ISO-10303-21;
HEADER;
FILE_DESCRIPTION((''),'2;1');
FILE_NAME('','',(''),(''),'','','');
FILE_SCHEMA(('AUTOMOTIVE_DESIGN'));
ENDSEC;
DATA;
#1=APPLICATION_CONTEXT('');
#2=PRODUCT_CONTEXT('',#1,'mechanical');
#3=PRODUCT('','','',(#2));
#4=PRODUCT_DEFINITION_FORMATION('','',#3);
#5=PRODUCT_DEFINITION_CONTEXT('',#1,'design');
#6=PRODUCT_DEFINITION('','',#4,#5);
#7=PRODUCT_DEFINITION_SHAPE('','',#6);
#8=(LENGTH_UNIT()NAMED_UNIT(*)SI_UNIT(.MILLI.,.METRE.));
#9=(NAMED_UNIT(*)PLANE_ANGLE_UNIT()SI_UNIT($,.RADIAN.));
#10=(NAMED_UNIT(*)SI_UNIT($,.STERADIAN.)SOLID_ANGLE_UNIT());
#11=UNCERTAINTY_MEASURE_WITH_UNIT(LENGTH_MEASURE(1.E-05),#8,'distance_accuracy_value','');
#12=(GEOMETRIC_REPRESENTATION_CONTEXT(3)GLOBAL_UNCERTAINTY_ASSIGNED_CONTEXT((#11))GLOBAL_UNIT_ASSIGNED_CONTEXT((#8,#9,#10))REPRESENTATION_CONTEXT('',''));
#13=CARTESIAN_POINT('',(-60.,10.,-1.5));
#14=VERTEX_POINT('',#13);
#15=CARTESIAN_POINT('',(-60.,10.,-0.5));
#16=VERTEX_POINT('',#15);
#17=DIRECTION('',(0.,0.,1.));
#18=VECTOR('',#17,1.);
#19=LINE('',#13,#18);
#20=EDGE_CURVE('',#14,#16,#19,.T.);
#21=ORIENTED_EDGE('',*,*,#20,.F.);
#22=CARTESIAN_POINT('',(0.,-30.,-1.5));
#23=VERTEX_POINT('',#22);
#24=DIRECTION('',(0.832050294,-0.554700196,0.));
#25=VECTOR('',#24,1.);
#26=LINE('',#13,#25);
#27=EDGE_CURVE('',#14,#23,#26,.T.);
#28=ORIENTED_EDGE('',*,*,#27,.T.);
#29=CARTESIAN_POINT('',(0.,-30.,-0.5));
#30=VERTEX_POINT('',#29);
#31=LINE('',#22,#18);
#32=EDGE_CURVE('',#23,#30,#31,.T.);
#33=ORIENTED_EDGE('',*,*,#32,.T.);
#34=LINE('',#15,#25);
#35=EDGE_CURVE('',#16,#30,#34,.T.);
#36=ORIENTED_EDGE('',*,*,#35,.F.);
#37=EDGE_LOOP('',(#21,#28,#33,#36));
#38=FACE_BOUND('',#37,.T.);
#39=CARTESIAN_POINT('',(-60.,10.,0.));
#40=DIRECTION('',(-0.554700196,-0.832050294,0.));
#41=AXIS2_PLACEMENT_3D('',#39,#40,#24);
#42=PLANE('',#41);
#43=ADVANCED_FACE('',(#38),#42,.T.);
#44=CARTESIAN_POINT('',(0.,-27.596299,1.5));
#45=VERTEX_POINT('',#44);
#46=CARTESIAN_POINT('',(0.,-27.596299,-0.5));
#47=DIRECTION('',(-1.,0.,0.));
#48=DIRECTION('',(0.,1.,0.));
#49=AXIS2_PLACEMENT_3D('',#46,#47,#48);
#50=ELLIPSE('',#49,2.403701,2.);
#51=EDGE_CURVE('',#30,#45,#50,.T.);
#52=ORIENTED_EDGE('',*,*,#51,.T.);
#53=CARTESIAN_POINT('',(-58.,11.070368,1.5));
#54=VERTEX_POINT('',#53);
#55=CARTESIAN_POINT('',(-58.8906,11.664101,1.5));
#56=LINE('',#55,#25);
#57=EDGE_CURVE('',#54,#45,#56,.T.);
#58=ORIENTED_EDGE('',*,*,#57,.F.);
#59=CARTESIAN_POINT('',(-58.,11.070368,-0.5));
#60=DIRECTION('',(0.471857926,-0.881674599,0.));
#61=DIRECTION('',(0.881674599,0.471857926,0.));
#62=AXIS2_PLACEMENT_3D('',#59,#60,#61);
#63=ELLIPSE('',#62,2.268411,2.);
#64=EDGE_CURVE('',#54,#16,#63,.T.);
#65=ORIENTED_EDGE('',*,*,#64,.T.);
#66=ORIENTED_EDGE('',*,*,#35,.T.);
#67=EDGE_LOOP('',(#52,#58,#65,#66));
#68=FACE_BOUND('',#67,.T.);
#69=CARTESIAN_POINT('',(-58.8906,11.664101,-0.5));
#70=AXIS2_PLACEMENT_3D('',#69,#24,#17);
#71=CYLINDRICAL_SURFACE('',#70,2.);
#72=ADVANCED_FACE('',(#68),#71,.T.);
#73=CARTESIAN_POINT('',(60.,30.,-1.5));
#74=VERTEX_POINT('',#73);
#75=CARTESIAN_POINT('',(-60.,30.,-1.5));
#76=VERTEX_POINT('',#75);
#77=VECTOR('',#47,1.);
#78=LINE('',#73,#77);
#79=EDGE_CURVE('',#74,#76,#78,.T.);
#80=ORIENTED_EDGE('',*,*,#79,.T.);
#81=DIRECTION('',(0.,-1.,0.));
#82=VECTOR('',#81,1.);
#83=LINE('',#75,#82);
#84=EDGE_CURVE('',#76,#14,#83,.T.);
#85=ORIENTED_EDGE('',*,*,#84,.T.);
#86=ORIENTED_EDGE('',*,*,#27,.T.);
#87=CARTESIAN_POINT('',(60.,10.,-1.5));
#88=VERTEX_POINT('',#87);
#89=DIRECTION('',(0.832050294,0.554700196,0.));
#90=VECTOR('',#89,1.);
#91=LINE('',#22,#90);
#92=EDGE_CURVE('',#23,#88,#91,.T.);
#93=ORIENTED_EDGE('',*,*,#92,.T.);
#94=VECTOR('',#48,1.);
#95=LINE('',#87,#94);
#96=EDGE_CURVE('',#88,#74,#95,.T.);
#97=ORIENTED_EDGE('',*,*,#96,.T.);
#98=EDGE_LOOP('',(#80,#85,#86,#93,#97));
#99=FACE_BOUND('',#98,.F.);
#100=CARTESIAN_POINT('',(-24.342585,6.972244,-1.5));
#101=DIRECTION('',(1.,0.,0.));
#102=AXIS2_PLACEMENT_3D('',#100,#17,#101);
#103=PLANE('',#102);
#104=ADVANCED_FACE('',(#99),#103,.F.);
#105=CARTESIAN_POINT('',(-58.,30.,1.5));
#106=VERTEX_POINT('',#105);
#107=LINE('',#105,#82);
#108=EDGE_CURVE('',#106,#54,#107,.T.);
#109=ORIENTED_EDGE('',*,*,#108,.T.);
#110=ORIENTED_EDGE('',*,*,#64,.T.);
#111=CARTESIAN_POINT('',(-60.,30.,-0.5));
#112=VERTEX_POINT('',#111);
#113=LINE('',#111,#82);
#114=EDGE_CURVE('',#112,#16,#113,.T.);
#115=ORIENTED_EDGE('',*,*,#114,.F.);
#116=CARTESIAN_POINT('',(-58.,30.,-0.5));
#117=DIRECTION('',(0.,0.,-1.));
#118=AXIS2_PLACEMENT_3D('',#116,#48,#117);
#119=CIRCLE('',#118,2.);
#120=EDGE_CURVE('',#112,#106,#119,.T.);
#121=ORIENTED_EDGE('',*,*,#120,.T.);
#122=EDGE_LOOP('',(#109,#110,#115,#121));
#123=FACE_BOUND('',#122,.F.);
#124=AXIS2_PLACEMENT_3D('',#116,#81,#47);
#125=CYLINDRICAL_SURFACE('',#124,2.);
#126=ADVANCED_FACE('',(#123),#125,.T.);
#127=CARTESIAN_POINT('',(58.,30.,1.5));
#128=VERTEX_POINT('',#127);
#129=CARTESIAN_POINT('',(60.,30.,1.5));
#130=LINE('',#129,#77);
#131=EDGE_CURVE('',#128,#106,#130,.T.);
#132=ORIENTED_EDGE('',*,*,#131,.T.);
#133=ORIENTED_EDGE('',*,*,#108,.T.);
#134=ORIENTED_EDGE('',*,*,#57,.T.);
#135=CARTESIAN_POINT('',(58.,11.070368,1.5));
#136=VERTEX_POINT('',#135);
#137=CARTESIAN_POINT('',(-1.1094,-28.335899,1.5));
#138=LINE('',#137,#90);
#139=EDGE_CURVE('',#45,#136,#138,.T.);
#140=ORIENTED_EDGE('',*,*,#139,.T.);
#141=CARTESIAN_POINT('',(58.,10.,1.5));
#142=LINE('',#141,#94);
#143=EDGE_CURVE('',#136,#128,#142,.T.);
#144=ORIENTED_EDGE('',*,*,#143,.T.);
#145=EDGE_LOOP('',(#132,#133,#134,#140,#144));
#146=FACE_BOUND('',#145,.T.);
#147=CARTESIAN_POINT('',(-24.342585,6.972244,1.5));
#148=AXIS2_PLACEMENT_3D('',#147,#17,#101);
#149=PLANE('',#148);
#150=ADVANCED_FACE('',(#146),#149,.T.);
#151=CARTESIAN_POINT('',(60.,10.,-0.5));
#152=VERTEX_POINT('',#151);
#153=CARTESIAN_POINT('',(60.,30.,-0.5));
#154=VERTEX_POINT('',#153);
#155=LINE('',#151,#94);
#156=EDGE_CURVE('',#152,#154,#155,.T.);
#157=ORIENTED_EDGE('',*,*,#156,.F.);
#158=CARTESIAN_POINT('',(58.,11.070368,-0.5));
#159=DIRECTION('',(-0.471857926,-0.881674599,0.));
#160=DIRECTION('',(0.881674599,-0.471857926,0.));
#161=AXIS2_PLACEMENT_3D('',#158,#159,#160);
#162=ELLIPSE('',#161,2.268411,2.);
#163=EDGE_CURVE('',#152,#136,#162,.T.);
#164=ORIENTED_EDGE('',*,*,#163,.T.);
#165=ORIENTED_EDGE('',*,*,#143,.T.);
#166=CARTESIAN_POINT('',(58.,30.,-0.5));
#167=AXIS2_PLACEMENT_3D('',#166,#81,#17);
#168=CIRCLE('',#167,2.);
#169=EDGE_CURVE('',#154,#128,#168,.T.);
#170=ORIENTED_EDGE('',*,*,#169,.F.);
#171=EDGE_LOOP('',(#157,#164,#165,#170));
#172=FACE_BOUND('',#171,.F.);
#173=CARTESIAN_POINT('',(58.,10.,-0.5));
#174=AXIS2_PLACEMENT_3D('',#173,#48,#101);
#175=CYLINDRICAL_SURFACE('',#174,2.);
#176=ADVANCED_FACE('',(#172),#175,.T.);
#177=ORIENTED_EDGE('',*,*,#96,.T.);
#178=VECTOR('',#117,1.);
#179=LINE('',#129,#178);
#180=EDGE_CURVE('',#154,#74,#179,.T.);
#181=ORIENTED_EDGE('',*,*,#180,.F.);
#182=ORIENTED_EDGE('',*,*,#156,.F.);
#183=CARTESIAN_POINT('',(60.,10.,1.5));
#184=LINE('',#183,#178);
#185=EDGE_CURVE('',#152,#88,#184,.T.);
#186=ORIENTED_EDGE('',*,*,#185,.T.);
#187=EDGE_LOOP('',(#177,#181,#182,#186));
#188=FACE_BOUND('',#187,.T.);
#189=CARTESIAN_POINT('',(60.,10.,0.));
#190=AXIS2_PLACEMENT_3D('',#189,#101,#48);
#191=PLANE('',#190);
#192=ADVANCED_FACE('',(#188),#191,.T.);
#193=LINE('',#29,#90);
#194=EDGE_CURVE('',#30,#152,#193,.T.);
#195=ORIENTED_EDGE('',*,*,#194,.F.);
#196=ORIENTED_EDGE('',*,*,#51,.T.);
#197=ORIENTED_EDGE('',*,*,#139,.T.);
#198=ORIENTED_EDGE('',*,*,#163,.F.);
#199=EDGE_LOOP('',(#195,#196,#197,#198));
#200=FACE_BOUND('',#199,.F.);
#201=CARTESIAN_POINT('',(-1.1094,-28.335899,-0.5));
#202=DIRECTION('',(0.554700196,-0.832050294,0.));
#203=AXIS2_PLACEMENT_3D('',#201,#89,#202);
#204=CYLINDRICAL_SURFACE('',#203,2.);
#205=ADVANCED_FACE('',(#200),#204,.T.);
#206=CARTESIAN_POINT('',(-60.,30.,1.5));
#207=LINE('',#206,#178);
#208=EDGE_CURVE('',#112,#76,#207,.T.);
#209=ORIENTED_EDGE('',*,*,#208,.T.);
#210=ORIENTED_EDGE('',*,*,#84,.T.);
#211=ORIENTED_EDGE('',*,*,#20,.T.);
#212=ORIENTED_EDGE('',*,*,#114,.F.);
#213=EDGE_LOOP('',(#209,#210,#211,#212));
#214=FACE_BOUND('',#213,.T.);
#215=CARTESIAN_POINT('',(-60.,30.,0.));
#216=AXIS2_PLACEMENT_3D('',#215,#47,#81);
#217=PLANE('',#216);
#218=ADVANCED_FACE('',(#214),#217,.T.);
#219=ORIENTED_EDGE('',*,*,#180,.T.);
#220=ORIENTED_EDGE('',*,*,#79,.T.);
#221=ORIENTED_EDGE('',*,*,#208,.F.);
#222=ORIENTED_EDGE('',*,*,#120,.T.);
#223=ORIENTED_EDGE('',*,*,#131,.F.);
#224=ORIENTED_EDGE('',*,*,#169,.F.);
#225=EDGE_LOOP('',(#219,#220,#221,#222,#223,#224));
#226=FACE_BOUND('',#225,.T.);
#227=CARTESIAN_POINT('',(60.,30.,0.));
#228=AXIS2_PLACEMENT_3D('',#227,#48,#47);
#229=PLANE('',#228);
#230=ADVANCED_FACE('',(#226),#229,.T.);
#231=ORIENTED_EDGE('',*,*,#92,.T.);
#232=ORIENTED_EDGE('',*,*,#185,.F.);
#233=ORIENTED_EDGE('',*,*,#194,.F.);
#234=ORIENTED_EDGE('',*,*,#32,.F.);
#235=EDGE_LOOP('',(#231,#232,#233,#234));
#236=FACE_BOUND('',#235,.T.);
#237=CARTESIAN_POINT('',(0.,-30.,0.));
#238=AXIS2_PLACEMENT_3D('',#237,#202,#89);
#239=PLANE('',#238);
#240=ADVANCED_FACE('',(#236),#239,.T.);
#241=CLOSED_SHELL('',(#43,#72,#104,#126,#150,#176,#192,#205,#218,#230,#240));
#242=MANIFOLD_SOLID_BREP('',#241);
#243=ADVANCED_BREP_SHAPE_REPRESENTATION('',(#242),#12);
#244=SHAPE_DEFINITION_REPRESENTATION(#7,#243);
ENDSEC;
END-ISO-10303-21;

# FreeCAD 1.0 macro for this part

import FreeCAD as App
import Part
import Sketcher

V = App.Vector
Q = App.Units.Quantity


def edges_at(feature, points):
    """Names of the edges that pass closest to the given points."""
    edges = feature.Shape.Edges
    near = lambda p: min(range(len(edges)), key=lambda i: edges[i].distToShape(Part.Vertex(*p))[0])
    return sorted({f"Edge{near(p) + 1}" for p in points})

doc = App.newDocument("Part")
body = doc.addObject("PartDesign::Body", "Body")

# Sketch on XY plane
sketch1 = body.newObject("Sketcher::SketchObject", "Sketch")
sketch1.AttachmentSupport = (doc.getObject("XY_Plane"), [""])
sketch1.MapMode = "FlatFace"
sketch1.addGeometry([
    Part.LineSegment(V(-60, 30, 0), V(-60, 10, 0)),  # 0
    Part.LineSegment(V(-60, 10, 0), V(0, -30, 0)),  # 1
    Part.LineSegment(V(0, -30, 0), V(60, 10, 0)),  # 2
    Part.LineSegment(V(60, 10, 0), V(60, 30, 0)),  # 3
    Part.LineSegment(V(60, 30, 0), V(-60, 30, 0)),  # 4
], False)
sketch1.addConstraint([
    Sketcher.Constraint("Coincident", 0, 2, 1, 1),
    Sketcher.Constraint("Coincident", 1, 2, 2, 1),
    Sketcher.Constraint("Coincident", 2, 2, 3, 1),
    Sketcher.Constraint("Coincident", 3, 2, 4, 1),
    Sketcher.Constraint("Coincident", 4, 2, 0, 1),
    Sketcher.Constraint("Vertical", 0),
    Sketcher.Constraint("Vertical", 3),
    Sketcher.Constraint("Horizontal", 4),
    Sketcher.Constraint("Symmetric", 0, 2, 2, 2, -2),
    Sketcher.Constraint("PointOnObject", 1, 2, -2),
    Sketcher.Constraint("DistanceX", 4, 2, 4, 1, Q("120 mm")),
    Sketcher.Constraint("DistanceY", 0, 2, 0, 1, Q("20 mm")),
    Sketcher.Constraint("DistanceY", -1, 1, 0, 2, Q("10 mm")),
    Sketcher.Constraint("DistanceY", 1, 2, -1, 1, Q("30 mm")),
])
pad1 = body.newObject("PartDesign::Pad", "Pad")
pad1.Profile = sketch1
pad1.Length = 3
pad1.Midplane = True
doc.recompute()

fillet = body.newObject("PartDesign::Fillet", "Fillet")
fillet.Base = (pad1, edges_at(pad1, [
    (30, -10, 1.5),
    (-30, -10, 1.5),
    (-60, 20, 1.5),
    (60, 20, 1.5),
]))
fillet.Radius = 2

doc.recompute()
